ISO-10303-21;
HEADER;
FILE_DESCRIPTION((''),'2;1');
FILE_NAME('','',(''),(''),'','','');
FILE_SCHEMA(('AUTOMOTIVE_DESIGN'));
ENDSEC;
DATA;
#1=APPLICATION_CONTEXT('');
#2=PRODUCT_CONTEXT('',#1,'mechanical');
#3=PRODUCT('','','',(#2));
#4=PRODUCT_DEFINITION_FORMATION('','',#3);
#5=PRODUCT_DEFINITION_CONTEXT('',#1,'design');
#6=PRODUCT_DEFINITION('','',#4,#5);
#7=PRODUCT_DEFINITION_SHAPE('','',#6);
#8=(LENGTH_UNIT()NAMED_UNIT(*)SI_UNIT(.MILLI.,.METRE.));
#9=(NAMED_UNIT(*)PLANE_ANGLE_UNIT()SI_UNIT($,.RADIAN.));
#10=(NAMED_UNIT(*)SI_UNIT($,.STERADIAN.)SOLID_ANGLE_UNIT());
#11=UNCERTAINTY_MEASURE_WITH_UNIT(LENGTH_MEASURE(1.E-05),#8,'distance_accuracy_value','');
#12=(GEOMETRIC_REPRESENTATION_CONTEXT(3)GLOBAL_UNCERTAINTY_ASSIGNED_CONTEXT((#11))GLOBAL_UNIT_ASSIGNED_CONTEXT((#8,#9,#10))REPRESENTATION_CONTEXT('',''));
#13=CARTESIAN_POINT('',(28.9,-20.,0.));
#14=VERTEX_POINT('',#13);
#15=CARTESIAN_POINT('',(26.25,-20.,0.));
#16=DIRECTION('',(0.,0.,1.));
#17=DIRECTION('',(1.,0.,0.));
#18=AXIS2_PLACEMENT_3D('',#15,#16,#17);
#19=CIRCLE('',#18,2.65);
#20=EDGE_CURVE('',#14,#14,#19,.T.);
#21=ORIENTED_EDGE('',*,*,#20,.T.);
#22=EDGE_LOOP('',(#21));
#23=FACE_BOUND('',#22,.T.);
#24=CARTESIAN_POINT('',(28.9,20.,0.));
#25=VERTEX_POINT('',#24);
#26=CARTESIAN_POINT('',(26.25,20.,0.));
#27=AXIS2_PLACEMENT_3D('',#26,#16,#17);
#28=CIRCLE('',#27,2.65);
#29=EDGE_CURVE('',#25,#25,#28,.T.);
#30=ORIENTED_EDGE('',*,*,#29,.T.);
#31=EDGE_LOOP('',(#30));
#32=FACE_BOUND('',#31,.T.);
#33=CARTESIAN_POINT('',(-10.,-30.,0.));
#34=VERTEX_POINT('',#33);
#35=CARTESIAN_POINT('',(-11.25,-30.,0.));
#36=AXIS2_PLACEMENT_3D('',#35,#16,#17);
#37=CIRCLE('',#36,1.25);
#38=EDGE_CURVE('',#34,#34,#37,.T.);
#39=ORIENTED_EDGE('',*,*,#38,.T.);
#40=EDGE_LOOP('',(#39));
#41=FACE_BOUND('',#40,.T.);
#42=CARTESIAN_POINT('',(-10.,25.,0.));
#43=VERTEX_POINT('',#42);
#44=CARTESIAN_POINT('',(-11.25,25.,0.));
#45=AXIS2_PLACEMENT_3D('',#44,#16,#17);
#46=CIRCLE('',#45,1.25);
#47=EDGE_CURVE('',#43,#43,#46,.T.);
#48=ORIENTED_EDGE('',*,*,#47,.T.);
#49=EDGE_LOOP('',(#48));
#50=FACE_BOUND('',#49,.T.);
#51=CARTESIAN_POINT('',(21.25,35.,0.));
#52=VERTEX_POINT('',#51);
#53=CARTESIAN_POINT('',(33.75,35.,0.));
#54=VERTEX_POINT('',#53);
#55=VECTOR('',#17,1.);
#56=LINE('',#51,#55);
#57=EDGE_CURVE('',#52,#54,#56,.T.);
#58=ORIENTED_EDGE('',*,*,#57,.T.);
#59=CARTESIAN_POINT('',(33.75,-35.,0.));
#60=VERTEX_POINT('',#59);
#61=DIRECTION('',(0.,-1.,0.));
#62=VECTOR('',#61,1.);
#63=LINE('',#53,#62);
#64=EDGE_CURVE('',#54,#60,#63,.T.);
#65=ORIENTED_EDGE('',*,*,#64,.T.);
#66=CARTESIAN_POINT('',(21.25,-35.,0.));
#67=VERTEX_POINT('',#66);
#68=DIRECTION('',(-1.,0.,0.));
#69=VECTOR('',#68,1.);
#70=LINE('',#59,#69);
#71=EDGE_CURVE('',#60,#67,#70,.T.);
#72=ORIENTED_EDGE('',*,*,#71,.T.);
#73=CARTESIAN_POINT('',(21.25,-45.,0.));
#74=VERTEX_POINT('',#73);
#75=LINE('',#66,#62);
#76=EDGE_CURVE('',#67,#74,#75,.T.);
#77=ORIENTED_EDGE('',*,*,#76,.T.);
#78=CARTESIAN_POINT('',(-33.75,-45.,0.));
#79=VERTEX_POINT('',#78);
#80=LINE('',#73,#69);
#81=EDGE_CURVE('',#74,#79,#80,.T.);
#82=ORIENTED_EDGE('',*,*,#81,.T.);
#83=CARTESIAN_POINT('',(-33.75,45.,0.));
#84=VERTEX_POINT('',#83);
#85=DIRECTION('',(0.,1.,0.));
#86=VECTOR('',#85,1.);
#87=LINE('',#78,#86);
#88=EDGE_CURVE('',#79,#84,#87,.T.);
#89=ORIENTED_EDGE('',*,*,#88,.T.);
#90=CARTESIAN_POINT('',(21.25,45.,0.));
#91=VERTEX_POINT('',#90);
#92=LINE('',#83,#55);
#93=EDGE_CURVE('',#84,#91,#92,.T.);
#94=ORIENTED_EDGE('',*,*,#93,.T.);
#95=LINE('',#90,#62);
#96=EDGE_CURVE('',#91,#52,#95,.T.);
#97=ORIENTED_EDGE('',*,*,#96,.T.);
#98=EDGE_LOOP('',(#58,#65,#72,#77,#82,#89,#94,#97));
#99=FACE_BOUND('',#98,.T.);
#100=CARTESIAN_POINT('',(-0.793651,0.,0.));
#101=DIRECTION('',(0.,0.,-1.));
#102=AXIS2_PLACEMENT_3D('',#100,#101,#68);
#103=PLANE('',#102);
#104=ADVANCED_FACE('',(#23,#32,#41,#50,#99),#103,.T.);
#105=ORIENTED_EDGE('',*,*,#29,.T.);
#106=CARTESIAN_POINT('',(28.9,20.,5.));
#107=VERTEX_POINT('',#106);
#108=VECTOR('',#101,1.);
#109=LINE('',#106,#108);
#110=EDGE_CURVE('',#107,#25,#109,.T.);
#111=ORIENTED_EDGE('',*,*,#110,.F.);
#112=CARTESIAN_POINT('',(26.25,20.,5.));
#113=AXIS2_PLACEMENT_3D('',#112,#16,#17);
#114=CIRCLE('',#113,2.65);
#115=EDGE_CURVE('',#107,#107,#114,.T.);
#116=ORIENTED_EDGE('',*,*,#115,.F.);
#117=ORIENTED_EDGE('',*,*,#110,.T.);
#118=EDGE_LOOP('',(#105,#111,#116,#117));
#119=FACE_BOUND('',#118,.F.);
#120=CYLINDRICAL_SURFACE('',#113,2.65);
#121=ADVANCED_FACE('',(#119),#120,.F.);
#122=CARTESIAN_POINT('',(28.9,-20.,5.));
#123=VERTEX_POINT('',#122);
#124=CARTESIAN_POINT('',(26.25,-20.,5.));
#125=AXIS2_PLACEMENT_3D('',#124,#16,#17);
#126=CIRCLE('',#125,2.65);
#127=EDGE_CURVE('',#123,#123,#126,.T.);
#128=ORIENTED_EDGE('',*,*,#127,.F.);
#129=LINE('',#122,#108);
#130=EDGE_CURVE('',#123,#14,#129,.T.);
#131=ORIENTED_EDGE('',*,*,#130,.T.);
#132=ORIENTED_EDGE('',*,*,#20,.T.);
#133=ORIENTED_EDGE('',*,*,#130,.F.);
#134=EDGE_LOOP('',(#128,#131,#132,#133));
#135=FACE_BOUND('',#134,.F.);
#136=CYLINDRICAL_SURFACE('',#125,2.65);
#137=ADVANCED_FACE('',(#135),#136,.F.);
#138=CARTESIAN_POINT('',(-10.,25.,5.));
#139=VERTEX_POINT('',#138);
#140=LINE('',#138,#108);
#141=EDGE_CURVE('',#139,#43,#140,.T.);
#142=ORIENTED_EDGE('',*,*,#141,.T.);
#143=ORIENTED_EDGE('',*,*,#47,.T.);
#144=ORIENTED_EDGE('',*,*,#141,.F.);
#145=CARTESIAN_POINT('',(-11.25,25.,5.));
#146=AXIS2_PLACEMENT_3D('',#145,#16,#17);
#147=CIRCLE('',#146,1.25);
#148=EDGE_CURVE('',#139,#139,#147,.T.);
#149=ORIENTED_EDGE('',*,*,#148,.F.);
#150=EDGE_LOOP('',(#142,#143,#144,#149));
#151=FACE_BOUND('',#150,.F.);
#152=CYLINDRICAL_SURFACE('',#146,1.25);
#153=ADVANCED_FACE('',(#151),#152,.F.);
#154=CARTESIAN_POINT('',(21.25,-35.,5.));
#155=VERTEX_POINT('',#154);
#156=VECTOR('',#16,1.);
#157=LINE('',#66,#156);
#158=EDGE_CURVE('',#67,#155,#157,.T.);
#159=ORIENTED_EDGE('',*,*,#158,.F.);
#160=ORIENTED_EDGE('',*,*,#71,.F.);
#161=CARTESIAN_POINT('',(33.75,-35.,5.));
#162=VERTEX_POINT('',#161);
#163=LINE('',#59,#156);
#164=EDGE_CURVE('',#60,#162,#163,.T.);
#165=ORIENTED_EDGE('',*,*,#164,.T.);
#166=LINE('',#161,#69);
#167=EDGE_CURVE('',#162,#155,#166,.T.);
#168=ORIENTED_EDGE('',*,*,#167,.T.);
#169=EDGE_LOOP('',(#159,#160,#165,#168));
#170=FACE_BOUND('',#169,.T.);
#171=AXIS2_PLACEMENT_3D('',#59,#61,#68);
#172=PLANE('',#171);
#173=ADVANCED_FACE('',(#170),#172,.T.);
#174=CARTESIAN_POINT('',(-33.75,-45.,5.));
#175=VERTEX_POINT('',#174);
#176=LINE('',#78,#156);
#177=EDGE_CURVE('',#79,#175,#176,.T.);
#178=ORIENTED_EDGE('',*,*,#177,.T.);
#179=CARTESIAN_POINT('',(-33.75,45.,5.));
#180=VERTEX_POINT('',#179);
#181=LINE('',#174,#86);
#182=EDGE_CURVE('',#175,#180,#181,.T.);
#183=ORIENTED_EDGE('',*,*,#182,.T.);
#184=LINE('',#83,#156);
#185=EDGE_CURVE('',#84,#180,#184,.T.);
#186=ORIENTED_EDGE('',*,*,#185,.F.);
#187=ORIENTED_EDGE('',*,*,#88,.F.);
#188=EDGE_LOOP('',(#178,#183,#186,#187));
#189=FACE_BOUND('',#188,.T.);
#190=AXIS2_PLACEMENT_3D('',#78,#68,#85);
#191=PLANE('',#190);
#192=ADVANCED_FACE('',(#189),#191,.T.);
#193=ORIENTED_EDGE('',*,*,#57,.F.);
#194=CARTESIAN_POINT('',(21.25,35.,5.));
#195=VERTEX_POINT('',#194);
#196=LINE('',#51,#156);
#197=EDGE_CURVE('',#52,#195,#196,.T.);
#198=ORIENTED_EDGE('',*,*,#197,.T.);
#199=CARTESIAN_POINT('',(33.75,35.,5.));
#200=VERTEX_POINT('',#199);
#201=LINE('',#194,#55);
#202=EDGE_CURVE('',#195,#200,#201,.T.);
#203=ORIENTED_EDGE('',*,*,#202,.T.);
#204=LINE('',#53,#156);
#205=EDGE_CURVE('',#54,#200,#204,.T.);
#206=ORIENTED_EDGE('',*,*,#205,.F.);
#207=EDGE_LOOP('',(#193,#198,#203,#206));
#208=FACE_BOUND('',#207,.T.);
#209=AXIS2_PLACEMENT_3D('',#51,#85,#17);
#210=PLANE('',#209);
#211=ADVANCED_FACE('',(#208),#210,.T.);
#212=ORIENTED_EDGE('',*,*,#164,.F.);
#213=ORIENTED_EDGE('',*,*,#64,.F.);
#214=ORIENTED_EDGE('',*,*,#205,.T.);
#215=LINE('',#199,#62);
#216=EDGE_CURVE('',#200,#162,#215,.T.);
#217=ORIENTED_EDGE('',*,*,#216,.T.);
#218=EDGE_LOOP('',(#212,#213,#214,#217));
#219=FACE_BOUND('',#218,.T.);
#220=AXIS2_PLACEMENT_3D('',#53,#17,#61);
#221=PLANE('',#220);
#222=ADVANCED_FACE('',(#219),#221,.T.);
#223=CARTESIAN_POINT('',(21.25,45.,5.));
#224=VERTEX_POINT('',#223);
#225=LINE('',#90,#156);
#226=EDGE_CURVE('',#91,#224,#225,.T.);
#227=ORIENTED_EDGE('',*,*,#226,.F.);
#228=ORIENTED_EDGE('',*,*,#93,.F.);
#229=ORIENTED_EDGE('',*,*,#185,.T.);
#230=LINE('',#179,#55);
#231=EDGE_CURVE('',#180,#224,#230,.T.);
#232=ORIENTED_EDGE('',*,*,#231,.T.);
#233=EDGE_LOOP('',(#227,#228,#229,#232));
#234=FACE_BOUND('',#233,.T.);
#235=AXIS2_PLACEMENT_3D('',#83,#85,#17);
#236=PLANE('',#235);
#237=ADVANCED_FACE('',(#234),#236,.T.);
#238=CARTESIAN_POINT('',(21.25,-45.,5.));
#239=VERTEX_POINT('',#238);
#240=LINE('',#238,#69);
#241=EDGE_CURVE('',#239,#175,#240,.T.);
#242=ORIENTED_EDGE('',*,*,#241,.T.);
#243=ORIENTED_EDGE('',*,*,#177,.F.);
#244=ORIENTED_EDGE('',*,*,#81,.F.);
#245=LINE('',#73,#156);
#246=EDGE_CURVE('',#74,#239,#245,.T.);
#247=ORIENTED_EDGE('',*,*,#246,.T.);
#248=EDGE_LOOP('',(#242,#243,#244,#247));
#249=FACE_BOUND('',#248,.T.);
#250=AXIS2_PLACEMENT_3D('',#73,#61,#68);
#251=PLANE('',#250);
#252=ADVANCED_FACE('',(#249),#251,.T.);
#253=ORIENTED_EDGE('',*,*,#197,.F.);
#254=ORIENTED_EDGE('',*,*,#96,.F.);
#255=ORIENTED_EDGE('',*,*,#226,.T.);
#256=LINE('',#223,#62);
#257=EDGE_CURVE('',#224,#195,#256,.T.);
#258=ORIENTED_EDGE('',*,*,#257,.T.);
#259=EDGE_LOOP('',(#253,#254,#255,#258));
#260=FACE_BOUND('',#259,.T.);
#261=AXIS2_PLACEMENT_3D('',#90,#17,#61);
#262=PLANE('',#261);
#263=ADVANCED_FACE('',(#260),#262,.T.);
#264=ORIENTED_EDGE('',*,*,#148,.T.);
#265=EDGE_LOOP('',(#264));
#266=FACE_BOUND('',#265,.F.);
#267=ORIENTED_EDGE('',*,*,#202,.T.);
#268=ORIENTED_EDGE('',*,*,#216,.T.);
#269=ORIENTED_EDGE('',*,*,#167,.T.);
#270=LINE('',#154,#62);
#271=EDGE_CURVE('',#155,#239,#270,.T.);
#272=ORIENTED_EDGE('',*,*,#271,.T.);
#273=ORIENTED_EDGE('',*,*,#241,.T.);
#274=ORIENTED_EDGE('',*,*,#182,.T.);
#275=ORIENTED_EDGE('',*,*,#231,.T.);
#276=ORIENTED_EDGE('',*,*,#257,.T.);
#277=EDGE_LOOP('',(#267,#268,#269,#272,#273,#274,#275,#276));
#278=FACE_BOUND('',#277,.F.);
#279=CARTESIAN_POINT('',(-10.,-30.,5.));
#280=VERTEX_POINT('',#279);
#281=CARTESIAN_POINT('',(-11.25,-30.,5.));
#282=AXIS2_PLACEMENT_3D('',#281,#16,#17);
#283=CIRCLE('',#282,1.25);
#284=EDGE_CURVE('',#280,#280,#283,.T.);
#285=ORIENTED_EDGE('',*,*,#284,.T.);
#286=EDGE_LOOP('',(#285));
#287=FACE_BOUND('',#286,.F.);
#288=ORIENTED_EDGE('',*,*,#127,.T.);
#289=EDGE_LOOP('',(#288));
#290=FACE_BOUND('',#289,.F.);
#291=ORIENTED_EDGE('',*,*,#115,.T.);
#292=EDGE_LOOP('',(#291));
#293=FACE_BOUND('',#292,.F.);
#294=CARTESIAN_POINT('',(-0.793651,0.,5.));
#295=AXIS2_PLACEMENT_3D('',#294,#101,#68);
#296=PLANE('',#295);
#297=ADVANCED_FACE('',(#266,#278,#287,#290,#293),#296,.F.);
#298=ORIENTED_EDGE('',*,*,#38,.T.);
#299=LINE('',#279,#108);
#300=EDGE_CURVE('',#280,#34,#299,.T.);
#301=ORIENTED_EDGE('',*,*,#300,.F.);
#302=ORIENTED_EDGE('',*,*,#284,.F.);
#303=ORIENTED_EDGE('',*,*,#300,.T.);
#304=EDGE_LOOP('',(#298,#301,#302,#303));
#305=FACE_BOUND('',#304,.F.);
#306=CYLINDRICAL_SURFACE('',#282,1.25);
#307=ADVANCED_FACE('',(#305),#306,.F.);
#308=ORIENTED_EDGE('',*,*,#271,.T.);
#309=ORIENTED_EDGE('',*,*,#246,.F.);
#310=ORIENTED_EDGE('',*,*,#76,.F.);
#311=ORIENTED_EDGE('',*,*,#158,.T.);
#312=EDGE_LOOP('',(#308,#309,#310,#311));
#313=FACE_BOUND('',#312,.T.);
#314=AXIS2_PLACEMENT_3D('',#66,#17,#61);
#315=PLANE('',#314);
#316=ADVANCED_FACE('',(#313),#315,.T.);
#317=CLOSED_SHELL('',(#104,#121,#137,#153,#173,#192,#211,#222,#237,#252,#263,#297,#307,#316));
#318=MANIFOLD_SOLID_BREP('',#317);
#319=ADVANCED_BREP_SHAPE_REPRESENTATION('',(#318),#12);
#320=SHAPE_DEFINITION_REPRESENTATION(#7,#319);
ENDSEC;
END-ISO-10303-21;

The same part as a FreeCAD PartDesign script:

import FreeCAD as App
import Part
import Sketcher


def add_polygon(sketch, points):
    """Adds a closed chain of lines whose ends are joined by coincident constraints."""
    first, n = sketch.GeometryCount, len(points)
    for a, b in zip(points, points[1:] + points[:1]):
        sketch.addGeometry(Part.LineSegment(App.Vector(*a, 0), App.Vector(*b, 0)), False)
    for i in range(n):
        sketch.addConstraint(Sketcher.Constraint("Coincident", first + i, 2, first + (i + 1) % n, 1))

doc = App.newDocument("Part")
body = doc.addObject("PartDesign::Body", "Body")

sketch1 = body.newObject("Sketcher::SketchObject", "Sketch")
sketch1.AttachmentSupport = (doc.getObject("XY_Plane"), [""])
sketch1.MapMode = "FlatFace"
add_polygon(sketch1, [(-34, 45), (-34, -45), (21, -45), (21, -35), (34, -35), (34, 35), (21, 35), (21, 45)])
sketch1.addConstraint([
    Sketcher.Constraint("Vertical", 0),
    Sketcher.Constraint("Horizontal", 1),
    Sketcher.Constraint("Vertical", 2),
    Sketcher.Constraint("Horizontal", 3),
    Sketcher.Constraint("Vertical", 4),
    Sketcher.Constraint("Horizontal", 5),
    Sketcher.Constraint("Vertical", 6),
    Sketcher.Constraint("Horizontal", 7),
    Sketcher.Constraint("Symmetric", 2, 2, 5, 2, -1),
    Sketcher.Constraint("Equal", 2, 6),
    Sketcher.Constraint("DistanceX", 1, 1, 1, 2, 55.0),
    Sketcher.Constraint("DistanceY", 0, 2, 0, 1, 90.0),
    Sketcher.Constraint("DistanceY", 2, 1, 2, 2, 10.0),
    Sketcher.Constraint("DistanceX", 3, 1, 3, 2, 12.5),
    Sketcher.Constraint("DistanceX", 0, 2, -1, 1, 33.75),
])
pad1 = body.newObject("PartDesign::Pad", "Pad")
pad1.Profile = sketch1
pad1.Length = 5

sketch2 = body.newObject("Sketcher::SketchObject", "Sketch001")
sketch2.AttachmentSupport = (doc.getObject("XY_Plane"), [""])
sketch2.MapMode = "FlatFace"
sketch2.AttachmentOffset = App.Placement(App.Vector(0, 0, 5), App.Rotation())
sketch2.addGeometry([
    Part.Circle(App.Vector(-11.2, 25, 0), App.Vector(0, 0, 1), 1.2),
    Part.Circle(App.Vector(-11.2, -30, 0), App.Vector(0, 0, 1), 1.2),
], False)
sketch2.addConstraint([
    Sketcher.Constraint("Equal", 0, 1),
    Sketcher.Constraint("Vertical", 0, 3, 1, 3),
    Sketcher.Constraint("Diameter", 0, 2.5),
    Sketcher.Constraint("DistanceY", -1, 1, 0, 3, 25.0),
    Sketcher.Constraint("DistanceY", 1, 3, -1, 1, 30.0),
    Sketcher.Constraint("DistanceX", 0, 3, -1, 1, 11.25),
])
pocket1 = body.newObject("PartDesign::Pocket", "Pocket")
pocket1.Profile = sketch2
pocket1.Length = 5

sketch3 = body.newObject("Sketcher::SketchObject", "Sketch002")
sketch3.AttachmentSupport = (doc.getObject("XY_Plane"), [""])
sketch3.MapMode = "FlatFace"
sketch3.AttachmentOffset = App.Placement(App.Vector(0, 0, 5), App.Rotation())
sketch3.addGeometry([
    Part.Circle(App.Vector(26.2, 20, 0), App.Vector(0, 0, 1), 2.6),
    Part.Circle(App.Vector(26.2, -20, 0), App.Vector(0, 0, 1), 2.6),
], False)
sketch3.addConstraint([
    Sketcher.Constraint("Equal", 0, 1),
    Sketcher.Constraint("Symmetric", 0, 3, 1, 3, -1),
    Sketcher.Constraint("Diameter", 0, 5.3),
    Sketcher.Constraint("DistanceY", -1, 1, 0, 3, 20.0),
    Sketcher.Constraint("DistanceX", -1, 1, 0, 3, 26.25),
])
pocket2 = body.newObject("PartDesign::Pocket", "Pocket001")
pocket2.Profile = sketch3
pocket2.Length = 5

doc.recompute()
